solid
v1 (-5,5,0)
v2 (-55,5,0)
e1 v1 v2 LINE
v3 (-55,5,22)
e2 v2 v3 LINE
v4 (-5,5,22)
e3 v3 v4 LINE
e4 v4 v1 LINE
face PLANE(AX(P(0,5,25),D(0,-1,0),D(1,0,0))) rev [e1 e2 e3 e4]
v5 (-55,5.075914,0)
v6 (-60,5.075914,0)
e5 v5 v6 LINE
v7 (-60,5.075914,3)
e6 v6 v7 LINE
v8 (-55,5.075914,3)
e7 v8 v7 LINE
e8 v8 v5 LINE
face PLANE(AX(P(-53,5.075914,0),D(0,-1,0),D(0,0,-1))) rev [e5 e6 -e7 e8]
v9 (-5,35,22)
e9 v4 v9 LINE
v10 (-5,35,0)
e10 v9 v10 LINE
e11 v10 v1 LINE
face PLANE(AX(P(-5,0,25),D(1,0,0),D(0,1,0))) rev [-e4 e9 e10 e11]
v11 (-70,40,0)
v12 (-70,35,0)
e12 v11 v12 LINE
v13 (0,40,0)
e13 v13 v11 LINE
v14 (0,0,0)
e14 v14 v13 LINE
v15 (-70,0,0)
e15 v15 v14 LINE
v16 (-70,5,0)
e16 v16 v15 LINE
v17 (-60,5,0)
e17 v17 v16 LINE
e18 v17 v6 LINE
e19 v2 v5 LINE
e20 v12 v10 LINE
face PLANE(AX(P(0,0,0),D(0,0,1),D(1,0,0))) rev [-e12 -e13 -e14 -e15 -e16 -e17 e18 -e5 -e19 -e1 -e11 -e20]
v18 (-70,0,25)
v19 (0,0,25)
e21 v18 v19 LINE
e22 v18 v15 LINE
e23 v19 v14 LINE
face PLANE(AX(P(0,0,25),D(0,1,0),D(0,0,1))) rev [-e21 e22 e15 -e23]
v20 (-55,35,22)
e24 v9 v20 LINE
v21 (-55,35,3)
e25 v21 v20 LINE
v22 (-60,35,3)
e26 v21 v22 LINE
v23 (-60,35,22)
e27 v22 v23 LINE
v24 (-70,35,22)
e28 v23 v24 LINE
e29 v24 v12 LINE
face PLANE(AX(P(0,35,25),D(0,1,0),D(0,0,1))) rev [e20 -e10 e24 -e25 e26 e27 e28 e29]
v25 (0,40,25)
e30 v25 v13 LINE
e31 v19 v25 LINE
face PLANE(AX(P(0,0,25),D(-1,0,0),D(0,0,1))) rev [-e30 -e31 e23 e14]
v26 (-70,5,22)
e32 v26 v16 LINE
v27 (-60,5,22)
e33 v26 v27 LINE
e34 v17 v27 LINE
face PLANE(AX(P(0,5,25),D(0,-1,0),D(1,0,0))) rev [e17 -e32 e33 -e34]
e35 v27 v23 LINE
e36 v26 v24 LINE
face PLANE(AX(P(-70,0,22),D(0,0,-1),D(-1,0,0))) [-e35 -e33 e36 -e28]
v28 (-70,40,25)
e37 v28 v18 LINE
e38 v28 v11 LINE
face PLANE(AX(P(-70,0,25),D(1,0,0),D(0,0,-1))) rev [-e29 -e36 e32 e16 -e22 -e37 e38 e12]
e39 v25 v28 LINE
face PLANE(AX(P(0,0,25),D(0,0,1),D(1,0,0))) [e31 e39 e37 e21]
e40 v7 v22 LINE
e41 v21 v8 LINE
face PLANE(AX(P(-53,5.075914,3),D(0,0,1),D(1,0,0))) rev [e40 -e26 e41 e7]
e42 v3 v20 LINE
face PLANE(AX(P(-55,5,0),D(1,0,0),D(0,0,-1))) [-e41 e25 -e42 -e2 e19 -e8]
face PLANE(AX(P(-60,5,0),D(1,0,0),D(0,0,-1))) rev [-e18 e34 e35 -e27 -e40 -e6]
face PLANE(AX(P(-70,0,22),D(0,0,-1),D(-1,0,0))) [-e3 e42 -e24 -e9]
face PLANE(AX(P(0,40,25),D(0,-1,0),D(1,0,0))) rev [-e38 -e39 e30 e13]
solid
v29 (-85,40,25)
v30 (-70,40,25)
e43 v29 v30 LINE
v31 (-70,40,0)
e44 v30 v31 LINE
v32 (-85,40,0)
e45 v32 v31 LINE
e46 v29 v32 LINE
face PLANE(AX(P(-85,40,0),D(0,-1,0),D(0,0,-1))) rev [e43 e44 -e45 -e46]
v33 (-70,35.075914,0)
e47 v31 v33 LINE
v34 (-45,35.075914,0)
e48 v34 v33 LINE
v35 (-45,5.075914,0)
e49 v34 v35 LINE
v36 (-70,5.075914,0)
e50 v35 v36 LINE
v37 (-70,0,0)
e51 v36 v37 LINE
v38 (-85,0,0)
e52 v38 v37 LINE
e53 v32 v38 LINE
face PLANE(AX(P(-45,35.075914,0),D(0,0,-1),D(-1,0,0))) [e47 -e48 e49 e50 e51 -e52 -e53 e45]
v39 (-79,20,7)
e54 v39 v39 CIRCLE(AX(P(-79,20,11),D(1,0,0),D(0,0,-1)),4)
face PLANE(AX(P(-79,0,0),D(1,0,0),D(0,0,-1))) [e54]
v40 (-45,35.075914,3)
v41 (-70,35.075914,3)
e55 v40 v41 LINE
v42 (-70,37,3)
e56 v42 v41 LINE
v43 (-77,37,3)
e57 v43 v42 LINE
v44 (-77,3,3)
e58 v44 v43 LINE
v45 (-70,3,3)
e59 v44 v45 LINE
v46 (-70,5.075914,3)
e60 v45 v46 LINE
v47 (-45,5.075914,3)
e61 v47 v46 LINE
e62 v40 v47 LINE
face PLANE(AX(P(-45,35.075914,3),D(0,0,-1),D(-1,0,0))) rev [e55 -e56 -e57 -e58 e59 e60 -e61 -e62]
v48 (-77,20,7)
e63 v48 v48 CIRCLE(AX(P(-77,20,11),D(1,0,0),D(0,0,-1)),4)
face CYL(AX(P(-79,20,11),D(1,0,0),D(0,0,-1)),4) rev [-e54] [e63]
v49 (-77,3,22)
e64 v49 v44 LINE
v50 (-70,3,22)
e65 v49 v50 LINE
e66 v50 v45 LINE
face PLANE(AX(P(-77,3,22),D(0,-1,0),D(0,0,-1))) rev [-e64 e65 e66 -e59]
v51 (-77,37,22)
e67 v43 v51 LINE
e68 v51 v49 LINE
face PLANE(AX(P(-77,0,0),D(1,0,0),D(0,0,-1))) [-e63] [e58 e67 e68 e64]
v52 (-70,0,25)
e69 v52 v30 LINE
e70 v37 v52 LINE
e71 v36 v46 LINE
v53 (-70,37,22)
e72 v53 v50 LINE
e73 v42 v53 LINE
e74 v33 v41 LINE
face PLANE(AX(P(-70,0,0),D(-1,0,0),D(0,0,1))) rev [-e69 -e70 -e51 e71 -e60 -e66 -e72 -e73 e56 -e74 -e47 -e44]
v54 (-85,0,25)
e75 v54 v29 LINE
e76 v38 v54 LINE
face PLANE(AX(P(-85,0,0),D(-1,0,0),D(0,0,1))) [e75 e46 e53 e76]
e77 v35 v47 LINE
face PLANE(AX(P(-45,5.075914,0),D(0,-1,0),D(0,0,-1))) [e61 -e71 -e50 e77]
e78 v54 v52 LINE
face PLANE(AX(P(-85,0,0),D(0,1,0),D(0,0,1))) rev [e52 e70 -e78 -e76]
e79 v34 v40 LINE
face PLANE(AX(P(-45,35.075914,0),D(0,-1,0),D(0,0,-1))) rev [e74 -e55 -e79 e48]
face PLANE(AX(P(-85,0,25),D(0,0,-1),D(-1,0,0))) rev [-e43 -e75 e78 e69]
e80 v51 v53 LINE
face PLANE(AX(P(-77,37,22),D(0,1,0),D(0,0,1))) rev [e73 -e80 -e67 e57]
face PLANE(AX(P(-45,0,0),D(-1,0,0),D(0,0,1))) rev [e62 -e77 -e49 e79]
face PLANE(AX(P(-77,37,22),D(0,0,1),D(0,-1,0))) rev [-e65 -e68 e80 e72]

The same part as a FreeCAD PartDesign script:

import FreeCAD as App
import Part
import Sketcher
from FreeCAD import Vector
Q = App.Units.Quantity


def add_polygon(sketch, points):
    """Adds a closed chain of lines whose ends are joined by coincident constraints."""
    first, n = sketch.GeometryCount, len(points)
    for a, b in zip(points, points[1:] + points[:1]):
        sketch.addGeometry(Part.LineSegment(App.Vector(*a, 0), App.Vector(*b, 0)), False)
    for i in range(n):
        sketch.addConstraint(Sketcher.Constraint("Coincident", first + i, 2, first + (i + 1) % n, 1))

doc = App.newDocument("Part")
body = doc.addObject("PartDesign::Body", "Body")

sketch1 = doc.addObject("Sketcher::SketchObject", "Sketch")
body.addObject(sketch1)
sketch1.AttachmentSupport = (doc.XY_Plane, [""])
sketch1.MapMode = "FlatFace"
add_polygon(sketch1, [(-70, 5), (-70, 0), (0, 0), (0, 40), (-70, 40), (-70, 35), (-5, 35), (-5, 5)])
sketch1.addConstraint([
    Sketcher.Constraint("Vertical", 0),
    Sketcher.Constraint("Horizontal", 1),
    Sketcher.Constraint("Vertical", 2),
    Sketcher.Constraint("Horizontal", 3),
    Sketcher.Constraint("Vertical", 4),
    Sketcher.Constraint("Horizontal", 5),
    Sketcher.Constraint("Vertical", 6),
    Sketcher.Constraint("Horizontal", 7),
    Sketcher.Constraint("Coincident", 1, 2, -1, 1),
    Sketcher.Constraint("Vertical", 0, 2, 3, 2),
    Sketcher.Constraint("Equal", 0, 4),
    Sketcher.Constraint("DistanceX", 1, 1, 1, 2, Q("70 mm")),
    Sketcher.Constraint("DistanceX", 5, 1, 5, 2, Q("65 mm")),
    Sketcher.Constraint("DistanceY", 0, 2, 0, 1, Q("5 mm")),
    Sketcher.Constraint("DistanceY", 2, 1, 2, 2, Q("40 mm")),
])
pad1 = doc.addObject("PartDesign::Pad", "Pad")
body.addObject(pad1)
pad1.Profile = sketch1
pad1.Length = 25

sketch2 = doc.addObject("Sketcher::SketchObject", "Sketch001")
body.addObject(sketch2)
sketch2.AttachmentSupport = (doc.YZ_Plane, [""])
sketch2.MapMode = "FlatFace"
add_polygon(sketch2, [(40, 25), (0, 25), (0, 22), (40, 22)])
sketch2.addConstraint([
    Sketcher.Constraint("Horizontal", 0),
    Sketcher.Constraint("Vertical", 1),
    Sketcher.Constraint("Horizontal", 2),
    Sketcher.Constraint("Vertical", 3),
    Sketcher.Constraint("PointOnObject", 0, 2, -2),
    Sketcher.Constraint("DistanceX", 0, 2, 0, 1, Q("40 mm")),
    Sketcher.Constraint("DistanceY", 1, 2, 1, 1, Q("3 mm")),
    Sketcher.Constraint("DistanceY", -1, 1, 0, 2, Q("25 mm")),
])
pad2 = doc.addObject("PartDesign::Pad", "Pad001")
body.addObject(pad2)
pad2.Profile = sketch2
pad2.Length = 70
pad2.Reversed = True

sketch3 = doc.addObject("Sketcher::SketchObject", "Sketch002")
body.addObject(sketch3)
sketch3.AttachmentSupport = (doc.XY_Plane, [""])
sketch3.MapMode = "FlatFace"
sketch3.AttachmentOffset = App.Placement(Vector(0, 0, 22), App.Rotation())
add_polygon(sketch3, [(-55, 35), (-55, 5), (-60, 5), (-60, 35)])
sketch3.addConstraint([
    Sketcher.Constraint("Vertical", 0),
    Sketcher.Constraint("Horizontal", 1),
    Sketcher.Constraint("Vertical", 2),
    Sketcher.Constraint("Horizontal", 3),
    Sketcher.Constraint("DistanceX", 1, 2, 1, 1, Q("5 mm")),
    Sketcher.Constraint("DistanceY", 0, 2, 0, 1, Q("30 mm")),
    Sketcher.Constraint("DistanceX", 0, 2, -1, 1, Q("55 mm")),
    Sketcher.Constraint("DistanceY", -1, 1, 0, 2, Q("5 mm")),
])
pad3 = doc.addObject("PartDesign::Pad", "Pad002")
body.addObject(pad3)
pad3.Profile = sketch3
pad3.Length = 22
pad3.Reversed = True

sketch4 = doc.addObject("Sketcher::SketchObject", "Sketch003")
body.addObject(sketch4)
sketch4.AttachmentSupport = (doc.YZ_Plane, [""])
sketch4.MapMode = "FlatFace"
sketch4.AttachmentOffset = App.Placement(Vector(0, 0, -60), App.Rotation())
add_polygon(sketch4, [(35, 0), (5.1, 0), (5.1, 3), (35, 3)])
sketch4.addConstraint([
    Sketcher.Constraint("Horizontal", 0),
    Sketcher.Constraint("Vertical", 1),
    Sketcher.Constraint("Horizontal", 2),
    Sketcher.Constraint("Vertical", 3),
    Sketcher.Constraint("PointOnObject", 0, 2, -1),
    Sketcher.Constraint("DistanceY", 1, 1, 1, 2, Q("3 mm")),
    Sketcher.Constraint("DistanceX", -1, 1, 2, 2, Q("35 mm")),
    Sketcher.Constraint("DistanceX", 0, 2, 0, 1, Q("29.924086 mm")),
])
pocket1 = doc.addObject("PartDesign::Pocket", "Pocket")
body.addObject(pocket1)
pocket1.Profile = sketch4
pocket1.Length = 7
pocket1.Reversed = True
body2 = doc.addObject("PartDesign::Body", "Body001")

sketch5 = doc.addObject("Sketcher::SketchObject", "Sketch004")
body2.addObject(sketch5)
sketch5.AttachmentSupport = (doc.getObject("YZ_Plane001"), [""])
sketch5.MapMode = "FlatFace"
sketch5.AttachmentOffset = App.Placement(Vector(0, 0, -70), App.Rotation())
add_polygon(sketch5, [(35.1, 0), (5.1, 0), (5.1, 3), (35.1, 3)])
sketch5.addConstraint([
    Sketcher.Constraint("Horizontal", 0),
    Sketcher.Constraint("Vertical", 1),
    Sketcher.Constraint("Horizontal", 2),
    Sketcher.Constraint("Vertical", 3),
    Sketcher.Constraint("PointOnObject", 0, 2, -1),
    Sketcher.Constraint("DistanceX", 0, 2, 0, 1, Q("30 mm")),
    Sketcher.Constraint("DistanceY", 1, 1, 1, 2, Q("3 mm")),
    Sketcher.Constraint("DistanceX", -1, 1, 0, 2, Q("5.075914 mm")),
])
pad4 = doc.addObject("PartDesign::Pad", "Pad003")
body2.addObject(pad4)
pad4.Profile = sketch5
pad4.Length = 25

sketch6 = doc.addObject("Sketcher::SketchObject", "Sketch005")
body2.addObject(sketch6)
sketch6.AttachmentSupport = (doc.getObject("YZ_Plane001"), [""])
sketch6.MapMode = "FlatFace"
sketch6.AttachmentOffset = App.Placement(Vector(0, 0, -70), App.Rotation())
add_polygon(sketch6, [(40, 0), (0, 0), (0, 25), (40, 25)])
sketch6.addConstraint([
    Sketcher.Constraint("Horizontal", 0),
    Sketcher.Constraint("Vertical", 1),
    Sketcher.Constraint("Horizontal", 2),
    Sketcher.Constraint("Vertical", 3),
    Sketcher.Constraint("Coincident", 0, 2, -1, 1),
    Sketcher.Constraint("DistanceX", 0, 2, 0, 1, Q("40 mm")),
    Sketcher.Constraint("DistanceY", 1, 1, 1, 2, Q("25 mm")),
])
pad5 = doc.addObject("PartDesign::Pad", "Pad004")
body2.addObject(pad5)
pad5.Profile = sketch6
pad5.Length = 15
pad5.Reversed = True

sketch7 = doc.addObject("Sketcher::SketchObject", "Sketch006")
body2.addObject(sketch7)
sketch7.AttachmentSupport = (doc.getObject("YZ_Plane001"), [""])
sketch7.MapMode = "FlatFace"
sketch7.AttachmentOffset = App.Placement(Vector(0, 0, -70), App.Rotation())
add_polygon(sketch7, [(37, 22), (3, 22), (3, 3), (37, 3)])
sketch7.addGeometry(Part.Circle(Vector(20, 11, 0), Vector(0, 0, 1), 4), False)
sketch7.addConstraint([
    Sketcher.Constraint("Horizontal", 0),
    Sketcher.Constraint("Vertical", 1),
    Sketcher.Constraint("Horizontal", 2),
    Sketcher.Constraint("Vertical", 3),
    Sketcher.Constraint("Diameter", 4, Q("8 mm")),
    Sketcher.Constraint("DistanceX", 0, 2, 0, 1, Q("34 mm")),
    Sketcher.Constraint("DistanceY", 1, 2, 1, 1, Q("19 mm")),
    Sketcher.Constraint("DistanceX", -1, 1, 4, 3, Q("20 mm")),
    Sketcher.Constraint("DistanceY", -1, 1, 4, 3, Q("11 mm")),
    Sketcher.Constraint("DistanceX", -1, 1, 0, 2, Q("3 mm")),
    Sketcher.Constraint("DistanceY", -1, 1, 0, 2, Q("22 mm")),
])
pocket2 = doc.addObject("PartDesign::Pocket", "Pocket001")
body2.addObject(pocket2)
pocket2.Profile = sketch7
pocket2.Length = 7

sketch8 = doc.addObject("Sketcher::SketchObject", "Sketch007")
body2.addObject(sketch8)
sketch8.AttachmentSupport = (doc.getObject("YZ_Plane001"), [""])
sketch8.MapMode = "FlatFace"
sketch8.AttachmentOffset = App.Placement(Vector(0, 0, -70), App.Rotation())
sketch8.addGeometry(Part.Circle(Vector(20, 11, 0), Vector(0, 0, 1), 4), False)
sketch8.addConstraint([
    Sketcher.Constraint("Diameter", 0, Q("8 mm")),
    Sketcher.Constraint("DistanceX", -1, 1, 0, 3, Q("20 mm")),
    Sketcher.Constraint("DistanceY", -1, 1, 0, 3, Q("11 mm")),
])
pocket3 = doc.addObject("PartDesign::Pocket", "Pocket002")
body2.addObject(pocket3)
pocket3.Profile = sketch8
pocket3.Length = 9

doc.recompute()
